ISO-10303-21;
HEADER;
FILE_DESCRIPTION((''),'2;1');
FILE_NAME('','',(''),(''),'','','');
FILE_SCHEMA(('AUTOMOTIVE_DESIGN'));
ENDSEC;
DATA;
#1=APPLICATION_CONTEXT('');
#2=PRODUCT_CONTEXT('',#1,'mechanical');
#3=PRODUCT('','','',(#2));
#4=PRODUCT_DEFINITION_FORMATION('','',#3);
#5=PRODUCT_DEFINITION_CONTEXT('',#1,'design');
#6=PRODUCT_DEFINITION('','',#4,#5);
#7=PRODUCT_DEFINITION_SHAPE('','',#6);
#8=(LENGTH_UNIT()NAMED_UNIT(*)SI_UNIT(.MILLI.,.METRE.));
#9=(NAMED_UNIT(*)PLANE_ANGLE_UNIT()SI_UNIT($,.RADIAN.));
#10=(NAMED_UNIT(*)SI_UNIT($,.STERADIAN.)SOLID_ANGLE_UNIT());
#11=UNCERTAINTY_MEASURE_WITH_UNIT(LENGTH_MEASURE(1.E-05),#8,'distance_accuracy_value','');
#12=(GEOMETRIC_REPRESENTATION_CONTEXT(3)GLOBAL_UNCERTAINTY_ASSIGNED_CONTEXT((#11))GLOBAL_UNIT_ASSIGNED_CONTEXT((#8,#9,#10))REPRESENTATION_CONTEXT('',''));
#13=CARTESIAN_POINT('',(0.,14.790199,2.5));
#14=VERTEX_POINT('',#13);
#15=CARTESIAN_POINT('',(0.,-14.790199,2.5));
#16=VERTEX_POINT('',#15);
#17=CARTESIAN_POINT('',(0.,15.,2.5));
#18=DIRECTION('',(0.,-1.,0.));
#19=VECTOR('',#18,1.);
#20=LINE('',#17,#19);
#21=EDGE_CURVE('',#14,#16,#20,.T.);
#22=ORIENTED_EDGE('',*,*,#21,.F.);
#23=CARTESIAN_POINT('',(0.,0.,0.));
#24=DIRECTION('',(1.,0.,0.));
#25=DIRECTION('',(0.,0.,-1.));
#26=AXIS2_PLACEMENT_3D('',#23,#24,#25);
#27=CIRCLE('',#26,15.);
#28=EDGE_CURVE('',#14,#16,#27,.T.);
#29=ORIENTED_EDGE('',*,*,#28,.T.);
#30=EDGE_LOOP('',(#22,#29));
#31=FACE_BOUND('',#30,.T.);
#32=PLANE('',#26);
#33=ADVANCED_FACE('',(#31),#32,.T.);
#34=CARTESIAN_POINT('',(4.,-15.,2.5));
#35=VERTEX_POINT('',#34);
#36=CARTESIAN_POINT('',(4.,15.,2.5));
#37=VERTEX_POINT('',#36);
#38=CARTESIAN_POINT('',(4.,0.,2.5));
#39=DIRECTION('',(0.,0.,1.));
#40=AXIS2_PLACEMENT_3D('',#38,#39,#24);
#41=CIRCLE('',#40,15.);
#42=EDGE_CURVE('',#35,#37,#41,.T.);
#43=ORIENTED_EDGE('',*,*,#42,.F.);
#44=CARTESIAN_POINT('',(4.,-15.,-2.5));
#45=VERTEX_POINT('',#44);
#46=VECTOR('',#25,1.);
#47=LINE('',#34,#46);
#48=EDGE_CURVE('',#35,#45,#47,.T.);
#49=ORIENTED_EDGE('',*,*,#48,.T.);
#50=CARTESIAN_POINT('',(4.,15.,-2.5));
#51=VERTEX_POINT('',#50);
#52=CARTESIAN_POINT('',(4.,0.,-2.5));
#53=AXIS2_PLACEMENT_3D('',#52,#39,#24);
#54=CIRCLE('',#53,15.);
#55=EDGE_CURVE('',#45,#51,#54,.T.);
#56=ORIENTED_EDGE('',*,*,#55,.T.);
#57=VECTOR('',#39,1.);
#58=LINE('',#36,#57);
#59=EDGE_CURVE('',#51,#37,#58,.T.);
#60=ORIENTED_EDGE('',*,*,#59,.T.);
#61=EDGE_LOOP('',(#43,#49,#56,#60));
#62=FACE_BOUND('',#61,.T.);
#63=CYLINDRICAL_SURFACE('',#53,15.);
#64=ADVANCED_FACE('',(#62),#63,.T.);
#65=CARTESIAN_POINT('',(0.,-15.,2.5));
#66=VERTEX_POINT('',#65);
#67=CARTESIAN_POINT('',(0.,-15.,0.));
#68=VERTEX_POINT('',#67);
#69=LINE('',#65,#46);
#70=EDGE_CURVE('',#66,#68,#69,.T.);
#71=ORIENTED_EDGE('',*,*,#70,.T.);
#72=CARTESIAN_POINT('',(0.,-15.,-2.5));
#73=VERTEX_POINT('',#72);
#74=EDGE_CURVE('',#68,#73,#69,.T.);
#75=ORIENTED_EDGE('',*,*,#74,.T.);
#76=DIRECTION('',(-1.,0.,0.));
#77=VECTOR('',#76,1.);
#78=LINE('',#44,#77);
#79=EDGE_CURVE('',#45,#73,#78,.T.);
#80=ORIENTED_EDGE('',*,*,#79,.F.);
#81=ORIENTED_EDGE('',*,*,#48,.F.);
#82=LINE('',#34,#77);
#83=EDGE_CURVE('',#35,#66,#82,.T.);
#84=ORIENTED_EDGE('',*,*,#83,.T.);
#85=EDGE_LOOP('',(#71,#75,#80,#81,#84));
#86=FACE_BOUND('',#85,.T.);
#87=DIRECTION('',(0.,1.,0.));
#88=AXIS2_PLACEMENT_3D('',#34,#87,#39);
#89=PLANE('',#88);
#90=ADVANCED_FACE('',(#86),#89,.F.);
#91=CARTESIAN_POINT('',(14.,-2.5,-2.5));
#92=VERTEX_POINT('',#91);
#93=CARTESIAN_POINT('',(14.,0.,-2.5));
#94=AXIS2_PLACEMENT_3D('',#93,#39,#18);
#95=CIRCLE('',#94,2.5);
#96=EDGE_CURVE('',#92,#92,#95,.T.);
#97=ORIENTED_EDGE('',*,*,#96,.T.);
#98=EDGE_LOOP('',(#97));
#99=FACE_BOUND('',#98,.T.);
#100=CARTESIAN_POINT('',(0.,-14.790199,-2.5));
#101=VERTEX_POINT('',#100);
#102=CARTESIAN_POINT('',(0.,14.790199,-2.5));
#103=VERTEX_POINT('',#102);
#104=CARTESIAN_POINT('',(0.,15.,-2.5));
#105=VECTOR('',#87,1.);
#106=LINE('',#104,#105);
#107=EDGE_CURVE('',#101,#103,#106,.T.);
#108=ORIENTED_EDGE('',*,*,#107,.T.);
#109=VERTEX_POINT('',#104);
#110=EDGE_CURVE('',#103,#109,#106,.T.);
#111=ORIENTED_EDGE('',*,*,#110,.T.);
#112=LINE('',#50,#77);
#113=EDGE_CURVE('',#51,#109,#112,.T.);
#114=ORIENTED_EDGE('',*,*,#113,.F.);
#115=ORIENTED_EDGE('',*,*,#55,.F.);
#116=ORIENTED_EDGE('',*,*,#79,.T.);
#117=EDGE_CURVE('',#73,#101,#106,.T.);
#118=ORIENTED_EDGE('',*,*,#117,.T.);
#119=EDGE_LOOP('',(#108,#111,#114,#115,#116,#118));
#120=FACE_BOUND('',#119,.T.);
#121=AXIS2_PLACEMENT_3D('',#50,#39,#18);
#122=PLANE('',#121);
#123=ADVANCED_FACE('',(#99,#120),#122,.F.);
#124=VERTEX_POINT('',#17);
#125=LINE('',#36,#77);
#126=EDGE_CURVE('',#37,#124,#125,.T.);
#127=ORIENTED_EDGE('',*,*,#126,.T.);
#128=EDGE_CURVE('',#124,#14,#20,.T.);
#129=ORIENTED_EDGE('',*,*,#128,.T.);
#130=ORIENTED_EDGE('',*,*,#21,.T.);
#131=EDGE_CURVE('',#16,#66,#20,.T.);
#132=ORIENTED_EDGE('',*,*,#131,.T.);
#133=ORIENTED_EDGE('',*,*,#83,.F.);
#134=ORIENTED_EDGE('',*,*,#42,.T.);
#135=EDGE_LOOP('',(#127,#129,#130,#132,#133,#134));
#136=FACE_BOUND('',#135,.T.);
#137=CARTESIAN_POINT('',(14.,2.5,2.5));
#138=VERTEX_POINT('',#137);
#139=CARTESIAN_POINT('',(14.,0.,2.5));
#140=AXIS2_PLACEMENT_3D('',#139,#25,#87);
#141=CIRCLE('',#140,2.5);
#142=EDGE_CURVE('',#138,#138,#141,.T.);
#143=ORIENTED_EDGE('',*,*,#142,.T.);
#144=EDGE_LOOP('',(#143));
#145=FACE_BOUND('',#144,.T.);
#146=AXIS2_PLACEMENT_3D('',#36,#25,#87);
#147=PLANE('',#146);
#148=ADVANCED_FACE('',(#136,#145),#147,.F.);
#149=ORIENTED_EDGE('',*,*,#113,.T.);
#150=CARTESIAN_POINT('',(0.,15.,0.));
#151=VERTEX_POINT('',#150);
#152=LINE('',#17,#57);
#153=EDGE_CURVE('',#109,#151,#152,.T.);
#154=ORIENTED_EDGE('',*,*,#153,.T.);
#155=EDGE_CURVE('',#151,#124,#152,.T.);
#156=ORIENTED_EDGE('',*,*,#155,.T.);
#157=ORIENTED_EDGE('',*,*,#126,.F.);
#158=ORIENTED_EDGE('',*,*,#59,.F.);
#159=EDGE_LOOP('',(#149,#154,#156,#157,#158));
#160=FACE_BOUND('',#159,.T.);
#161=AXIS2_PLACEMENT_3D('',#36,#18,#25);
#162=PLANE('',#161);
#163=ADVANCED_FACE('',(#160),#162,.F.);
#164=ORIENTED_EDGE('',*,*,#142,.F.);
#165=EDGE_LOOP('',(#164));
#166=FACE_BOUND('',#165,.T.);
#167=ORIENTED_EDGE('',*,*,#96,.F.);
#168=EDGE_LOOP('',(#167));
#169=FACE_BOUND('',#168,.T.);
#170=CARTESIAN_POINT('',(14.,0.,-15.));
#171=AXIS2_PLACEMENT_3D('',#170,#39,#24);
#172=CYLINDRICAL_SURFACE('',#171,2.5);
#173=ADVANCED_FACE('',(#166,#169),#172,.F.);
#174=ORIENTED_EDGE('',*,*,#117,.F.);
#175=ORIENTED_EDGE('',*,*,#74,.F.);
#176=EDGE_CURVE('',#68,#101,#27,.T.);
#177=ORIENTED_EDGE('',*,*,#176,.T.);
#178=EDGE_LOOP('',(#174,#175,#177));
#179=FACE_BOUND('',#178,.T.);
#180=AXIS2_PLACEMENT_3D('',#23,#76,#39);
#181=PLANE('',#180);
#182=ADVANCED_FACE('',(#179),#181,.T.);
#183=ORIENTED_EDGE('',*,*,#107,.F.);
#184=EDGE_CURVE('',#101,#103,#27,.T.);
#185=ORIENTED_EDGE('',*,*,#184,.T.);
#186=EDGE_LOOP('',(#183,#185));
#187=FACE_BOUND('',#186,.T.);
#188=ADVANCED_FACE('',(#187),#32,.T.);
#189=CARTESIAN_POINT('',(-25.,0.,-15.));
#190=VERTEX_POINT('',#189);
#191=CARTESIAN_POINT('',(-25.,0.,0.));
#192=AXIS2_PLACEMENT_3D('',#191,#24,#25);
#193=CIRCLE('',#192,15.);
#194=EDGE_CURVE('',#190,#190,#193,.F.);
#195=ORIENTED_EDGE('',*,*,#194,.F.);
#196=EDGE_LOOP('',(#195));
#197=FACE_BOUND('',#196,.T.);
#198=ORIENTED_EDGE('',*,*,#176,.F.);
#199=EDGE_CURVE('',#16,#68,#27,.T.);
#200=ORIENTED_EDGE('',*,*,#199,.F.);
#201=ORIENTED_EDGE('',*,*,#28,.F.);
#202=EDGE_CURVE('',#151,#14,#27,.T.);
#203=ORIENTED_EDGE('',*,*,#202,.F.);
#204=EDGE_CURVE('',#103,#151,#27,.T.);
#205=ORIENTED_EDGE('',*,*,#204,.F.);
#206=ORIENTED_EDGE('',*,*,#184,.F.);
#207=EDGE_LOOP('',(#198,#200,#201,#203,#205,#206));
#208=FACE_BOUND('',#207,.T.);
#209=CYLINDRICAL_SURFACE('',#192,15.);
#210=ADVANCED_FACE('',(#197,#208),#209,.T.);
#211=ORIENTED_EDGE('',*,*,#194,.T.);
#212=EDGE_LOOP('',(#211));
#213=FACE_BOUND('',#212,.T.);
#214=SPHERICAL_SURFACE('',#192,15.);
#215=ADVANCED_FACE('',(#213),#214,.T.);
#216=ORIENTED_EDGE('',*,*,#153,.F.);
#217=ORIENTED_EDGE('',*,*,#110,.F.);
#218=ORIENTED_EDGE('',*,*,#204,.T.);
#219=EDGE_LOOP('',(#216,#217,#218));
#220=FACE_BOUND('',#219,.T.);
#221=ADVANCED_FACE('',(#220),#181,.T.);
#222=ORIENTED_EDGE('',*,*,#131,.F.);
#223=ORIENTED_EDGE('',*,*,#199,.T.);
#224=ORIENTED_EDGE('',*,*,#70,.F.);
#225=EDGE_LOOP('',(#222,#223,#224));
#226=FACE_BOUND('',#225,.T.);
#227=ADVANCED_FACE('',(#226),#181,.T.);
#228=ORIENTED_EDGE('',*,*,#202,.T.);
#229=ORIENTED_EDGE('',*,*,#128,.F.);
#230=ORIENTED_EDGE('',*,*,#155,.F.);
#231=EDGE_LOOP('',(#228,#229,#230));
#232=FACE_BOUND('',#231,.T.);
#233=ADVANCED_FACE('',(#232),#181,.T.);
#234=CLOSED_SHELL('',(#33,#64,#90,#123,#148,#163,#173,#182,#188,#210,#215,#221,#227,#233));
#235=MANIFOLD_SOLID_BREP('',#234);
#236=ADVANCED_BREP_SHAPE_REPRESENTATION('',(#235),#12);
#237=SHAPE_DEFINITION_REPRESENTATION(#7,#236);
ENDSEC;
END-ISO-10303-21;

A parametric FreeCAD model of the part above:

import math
import FreeCAD as App
import Part
import Sketcher
from FreeCAD import Vector

doc = App.newDocument("Part")
params = doc.addObject("Spreadsheet::Sheet", "Params")
for row, (alias, value) in enumerate([
    ("sketch1_diameter", "30 mm"),
    ("pad1_length", "25 mm"),
    ("sketch2_width", "30 mm"),
    ("sketch2_height", "5 mm"),
    ("pad2_length", "4 mm"),
    ("sketch3_radius", "15 mm"),
    ("pad3_length", "5 mm"),
    ("sketch4_diameter", "5 mm"),
    ("sketch5_radius", "15 mm"),
    ("revolution_angle", "360 deg"),
], start=1):
    params.set(f"A{row}", alias)
    params.set(f"B{row}", "=" + value)
    params.setAlias(f"B{row}", alias)

body = doc.addObject("PartDesign::Body", "Body")

# Sketch on YZ plane
sketch1 = body.newObject("Sketcher::SketchObject", "Sketch")
sketch1.AttachmentSupport = (doc.getObject("YZ_Plane"), [""])
sketch1.MapMode = "FlatFace"
sketch1.addGeometry(Part.Circle(Vector(0, 0, 0), Vector(0, 0, 1), 15), False)
sketch1.addConstraint([
    Sketcher.Constraint("Coincident", 0, 3, -1, 1),
    Sketcher.Constraint("Diameter", 0, 30.0),
])
sketch1.setExpression("Constraints[1]", "Params.sketch1_diameter")
pad1 = body.newObject("PartDesign::Pad", "Pad")
pad1.Profile = sketch1
pad1.setExpression("Length", "Params.pad1_length")
pad1.Reversed = True

# Sketch on YZ plane
sketch2 = body.newObject("Sketcher::SketchObject", "Sketch001")
sketch2.AttachmentSupport = (doc.getObject("YZ_Plane"), [""])
sketch2.MapMode = "FlatFace"
sketch2.addGeometry([
    Part.LineSegment(Vector(15, 2, 0), Vector(-15, 2, 0)),
    Part.LineSegment(Vector(-15, 2, 0), Vector(-15, -2, 0)),
    Part.LineSegment(Vector(-15, -2, 0), Vector(15, -2, 0)),
    Part.LineSegment(Vector(15, -2, 0), Vector(15, 2, 0)),
], False)
sketch2.addConstraint([
    Sketcher.Constraint("Coincident", 0, 2, 1, 1),
    Sketcher.Constraint("Coincident", 1, 2, 2, 1),
    Sketcher.Constraint("Coincident", 2, 2, 3, 1),
    Sketcher.Constraint("Coincident", 3, 2, 0, 1),
    Sketcher.Constraint("Horizontal", 0),
    Sketcher.Constraint("Vertical", 1),
    Sketcher.Constraint("Horizontal", 2),
    Sketcher.Constraint("Vertical", 3),
    Sketcher.Constraint("Symmetric", 0, 2, 2, 2, -1, 1),
    Sketcher.Constraint("DistanceX", 0, 2, 0, 1, 30.0),
    Sketcher.Constraint("DistanceY", 1, 2, 1, 1, 5.0),
])
sketch2.setExpression("Constraints[9]", "Params.sketch2_width")
sketch2.setExpression("Constraints[10]", "Params.sketch2_height")
pad2 = body.newObject("PartDesign::Pad", "Pad001")
pad2.Profile = sketch2
pad2.setExpression("Length", "Params.pad2_length")

# Sketch on XY plane
sketch3 = body.newObject("Sketcher::SketchObject", "Sketch002")
sketch3.AttachmentSupport = (doc.getObject("XY_Plane"), [""])
sketch3.MapMode = "FlatFace"
sketch3.AttachmentOffset = App.Placement(Vector(0, 0, 2.5), App.Rotation())
sketch3.addGeometry([
    Part.LineSegment(Vector(4, 15, 0), Vector(4, -15, 0)),
    Part.ArcOfCircle(Part.Circle(Vector(4, 0, 0), Vector(0, 0, 1), 15), math.radians(-90), math.radians(90)),
], False)
sketch3.addConstraint([
    Sketcher.Constraint("Coincident", 0, 1, 1, 2),
    Sketcher.Constraint("Coincident", 1, 1, 0, 2),
    Sketcher.Constraint("Vertical", 0),
    Sketcher.Constraint("PointOnObject", 1, 3, -1),
    Sketcher.Constraint("Vertical", 1, 3, 0, 1),
    Sketcher.Constraint("Radius", 1, 15.0),
    Sketcher.Constraint("DistanceX", -1, 1, 1, 3, 4.0),
])
sketch3.setExpression("Constraints[5]", "Params.sketch3_radius")
pad3 = body.newObject("PartDesign::Pad", "Pad002")
pad3.Profile = sketch3
pad3.setExpression("Length", "Params.pad3_length")
pad3.Reversed = True

# Sketch on XY plane
sketch4 = body.newObject("Sketcher::SketchObject", "Sketch003")
sketch4.AttachmentSupport = (doc.getObject("XY_Plane"), [""])
sketch4.MapMode = "FlatFace"
sketch4.AttachmentOffset = App.Placement(Vector(0, 0, 2.5), App.Rotation())
sketch4.addGeometry(Part.Circle(Vector(14, 0, 0), Vector(0, 0, 1), 2.5), False)
sketch4.addConstraint([
    Sketcher.Constraint("PointOnObject", 0, 3, -1),
    Sketcher.Constraint("Diameter", 0, 5.0),
    Sketcher.Constraint("DistanceX", -1, 1, 0, 3, 14.0),
])
sketch4.setExpression("Constraints[1]", "Params.sketch4_diameter")
pocket1 = body.newObject("PartDesign::Pocket", "Pocket")
pocket1.Profile = sketch4
pocket1.Type = "ThroughAll"
pocket1.Midplane = True

# Sketch on YZ plane
sketch5 = body.newObject("Sketcher::SketchObject", "Sketch004")
sketch5.AttachmentSupport = (doc.getObject("YZ_Plane"), [""])
sketch5.MapMode = "FlatFace"
sketch5.AttachmentOffset = App.Placement(Vector(0, 0, -25), App.Rotation())
sketch5.addGeometry([
    Part.LineSegment(Vector(15, 0, 0), Vector(-15, 0, 0)),
    Part.ArcOfCircle(Part.Circle(Vector(0, 0, 0), Vector(0, 0, 1), 15), math.radians(0), math.radians(180)),
], False)
sketch5.addConstraint([
    Sketcher.Constraint("Coincident", 0, 1, 1, 1),
    Sketcher.Constraint("Coincident", 1, 2, 0, 2),
    Sketcher.Constraint("Horizontal", 0),
    Sketcher.Constraint("Coincident", 1, 3, -1, 1),
    Sketcher.Constraint("PointOnObject", 0, 1, -1),
    Sketcher.Constraint("Radius", 1, 15.0),
])
sketch5.setExpression("Constraints[5]", "Params.sketch5_radius")
revolution = body.newObject("PartDesign::Revolution", "Revolution")
revolution.Profile = sketch5
revolution.ReferenceAxis = (sketch5, ["H_Axis"])
revolution.setExpression("Angle", "Params.revolution_angle")

doc.recompute()
